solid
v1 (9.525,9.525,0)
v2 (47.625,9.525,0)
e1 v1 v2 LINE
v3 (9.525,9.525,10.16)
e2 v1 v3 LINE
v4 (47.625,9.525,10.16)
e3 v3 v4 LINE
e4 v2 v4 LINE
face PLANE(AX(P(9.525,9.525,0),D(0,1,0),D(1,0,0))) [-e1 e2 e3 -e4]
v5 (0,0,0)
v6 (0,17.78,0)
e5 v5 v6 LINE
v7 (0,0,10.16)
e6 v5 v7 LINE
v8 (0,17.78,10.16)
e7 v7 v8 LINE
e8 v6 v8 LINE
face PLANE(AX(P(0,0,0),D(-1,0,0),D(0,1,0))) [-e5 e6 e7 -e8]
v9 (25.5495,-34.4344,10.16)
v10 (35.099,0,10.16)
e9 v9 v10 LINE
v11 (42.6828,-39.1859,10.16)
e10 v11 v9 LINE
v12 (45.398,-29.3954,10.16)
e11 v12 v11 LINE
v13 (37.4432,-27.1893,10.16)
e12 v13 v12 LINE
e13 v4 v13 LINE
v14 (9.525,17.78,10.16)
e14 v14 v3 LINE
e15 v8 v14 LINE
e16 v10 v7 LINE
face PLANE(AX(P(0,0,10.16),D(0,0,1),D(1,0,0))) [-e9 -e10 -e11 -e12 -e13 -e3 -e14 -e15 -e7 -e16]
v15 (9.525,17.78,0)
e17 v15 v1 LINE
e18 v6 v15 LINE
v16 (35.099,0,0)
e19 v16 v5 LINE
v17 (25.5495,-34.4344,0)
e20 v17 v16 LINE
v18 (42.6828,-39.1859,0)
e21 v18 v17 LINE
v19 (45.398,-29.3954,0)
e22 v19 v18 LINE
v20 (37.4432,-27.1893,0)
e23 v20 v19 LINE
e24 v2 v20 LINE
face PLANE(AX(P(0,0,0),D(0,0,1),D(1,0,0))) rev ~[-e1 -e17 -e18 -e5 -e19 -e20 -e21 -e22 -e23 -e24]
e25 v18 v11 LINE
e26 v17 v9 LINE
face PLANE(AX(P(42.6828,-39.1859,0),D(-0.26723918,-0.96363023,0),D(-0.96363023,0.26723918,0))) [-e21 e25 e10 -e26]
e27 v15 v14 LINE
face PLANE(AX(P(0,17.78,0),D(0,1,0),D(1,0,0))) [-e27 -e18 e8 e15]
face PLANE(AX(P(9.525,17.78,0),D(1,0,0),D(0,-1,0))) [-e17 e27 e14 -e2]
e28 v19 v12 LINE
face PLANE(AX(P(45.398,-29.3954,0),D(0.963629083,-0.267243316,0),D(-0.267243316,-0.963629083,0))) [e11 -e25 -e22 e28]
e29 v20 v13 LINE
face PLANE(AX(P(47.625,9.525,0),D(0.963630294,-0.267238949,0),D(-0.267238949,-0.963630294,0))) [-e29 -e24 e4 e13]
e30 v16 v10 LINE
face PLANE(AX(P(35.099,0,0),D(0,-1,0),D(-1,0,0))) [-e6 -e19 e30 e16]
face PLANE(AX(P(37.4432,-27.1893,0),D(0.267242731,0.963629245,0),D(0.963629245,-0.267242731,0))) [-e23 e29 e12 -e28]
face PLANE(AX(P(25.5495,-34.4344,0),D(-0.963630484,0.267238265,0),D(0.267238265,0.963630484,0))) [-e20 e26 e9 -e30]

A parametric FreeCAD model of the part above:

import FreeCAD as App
import Part
import Sketcher

V = App.Vector
Q = App.Units.Quantity


def add_polygon(sketch, points):
    """Adds a closed chain of lines whose ends are joined by coincident constraints."""
    first, n = sketch.GeometryCount, len(points)
    for a, b in zip(points, points[1:] + points[:1]):
        sketch.addGeometry(Part.LineSegment(App.Vector(*a, 0), App.Vector(*b, 0)), False)
    for i in range(n):
        sketch.addConstraint(Sketcher.Constraint("Coincident", first + i, 2, first + (i + 1) % n, 1))

doc = App.newDocument("Part")
body = doc.addObject("PartDesign::Body", "Body")

# Sketch on XY plane
sketch1 = body.newObject("Sketcher::SketchObject", "Sketch")
sketch1.AttachmentSupport = (doc.getObject("XY_Plane"), [""])
sketch1.MapMode = "FlatFace"
add_polygon(sketch1, [(0, 17.78), (0, 0), (35.099, 0), (25.5495, -34.4344), (42.6828, -39.1859), (45.398, -29.3954), (37.4432, -27.1893), (47.625, 9.525), (9.525, 9.525), (9.525, 17.78)])  # lines 0-9
sketch1.addConstraint([
    Sketcher.Constraint("Vertical", 0),
    Sketcher.Constraint("Horizontal", 1),
    Sketcher.Constraint("Horizontal", 7),
    Sketcher.Constraint("Vertical", 8),
    Sketcher.Constraint("Horizontal", 9),
    Sketcher.Constraint("Coincident", 0, 2, -1, 1),
    Sketcher.Constraint("Perpendicular", 2, 3),
    Sketcher.Constraint("Perpendicular", 3, 4),
    Sketcher.Constraint("Perpendicular", 4, 5),
    Sketcher.Constraint("Perpendicular", 5, 6),
    Sketcher.Constraint("DistanceX", 7, 2, 7, 1, Q("1.5 in")),
    Sketcher.Constraint("DistanceY", 0, 2, 0, 1, Q("0.7 in")),
    Sketcher.Constraint("Distance", 3, Q("0.7 in")),
    Sketcher.Constraint("Distance", 4, Q("0.4 in")),
    Sketcher.Constraint("Distance", 6, Q("1.5 in")),
    Sketcher.Constraint("Angle", 4, Q("74.4997 deg")),
    Sketcher.Constraint("DistanceX", 9, 2, 9, 1, Q("0.375 in")),
    Sketcher.Constraint("DistanceY", 8, 1, 8, 2, Q("0.325 in")),
    Sketcher.Constraint("Distance", 5, Q("0.325 in")),
])
pad1 = body.newObject("PartDesign::Pad", "Pad")
pad1.Profile = sketch1
pad1.Length = Q("0.4 in")

doc.recompute()
